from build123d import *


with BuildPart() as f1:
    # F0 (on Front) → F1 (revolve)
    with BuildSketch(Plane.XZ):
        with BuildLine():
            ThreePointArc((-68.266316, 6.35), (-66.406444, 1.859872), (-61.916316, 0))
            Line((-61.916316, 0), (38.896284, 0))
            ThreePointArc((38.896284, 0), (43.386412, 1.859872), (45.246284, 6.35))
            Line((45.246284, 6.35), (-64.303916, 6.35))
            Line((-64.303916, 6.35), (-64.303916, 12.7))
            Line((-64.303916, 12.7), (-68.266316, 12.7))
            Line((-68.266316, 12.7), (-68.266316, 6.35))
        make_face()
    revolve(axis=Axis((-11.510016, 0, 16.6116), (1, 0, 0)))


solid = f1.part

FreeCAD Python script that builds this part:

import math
import FreeCAD as App
import Part
import Sketcher

V = App.Vector
Q = App.Units.Quantity

doc = App.newDocument("Part")
body = doc.addObject("PartDesign::Body", "Body")

sketch1 = doc.addObject("Sketcher::SketchObject", "Sketch")
body.addObject(sketch1)
sketch1.AttachmentSupport = (doc.XZ_Plane, [""])
sketch1.MapMode = "FlatFace"
sketch1.addGeometry(Part.ArcOfCircle(Part.Circle(V(-61.9, 6.4, 0), V(0, 0, 1), 6.4), math.radians(-180), math.radians(-90)), False)
sketch1.addGeometry(Part.LineSegment(V(-61.9, 0, 0), V(38.9, 0, 0)), False)
sketch1.addGeometry(Part.ArcOfCircle(Part.Circle(V(38.9, 6.4, 0), V(0, 0, 1), 6.4), math.radians(-90), math.radians(0)), False)
sketch1.addGeometry(Part.LineSegment(V(45.2, 6.3, 0), V(-64.3, 6.3, 0)), False)
sketch1.addGeometry(Part.LineSegment(V(-64.3, 6.3, 0), V(-64.3, 12.7, 0)), False)
sketch1.addGeometry(Part.LineSegment(V(-64.3, 12.7, 0), V(-68.3, 12.7, 0)), False)
sketch1.addGeometry(Part.LineSegment(V(-68.3, 12.7, 0), V(-68.3, 6.3, 0)), False)
sketch1.addGeometry(Part.LineSegment(V(-68.3, 16.6, 0), V(45.2, 16.6, 0)), True)
sketch1.addConstraint(Sketcher.Constraint("Tangent", 0, 2, 1, 1))
sketch1.addConstraint(Sketcher.Constraint("Tangent", 1, 2, 2, 1))
sketch1.addConstraint(Sketcher.Constraint("Coincident", 2, 2, 3, 1))
sketch1.addConstraint(Sketcher.Constraint("Coincident", 3, 2, 4, 1))
sketch1.addConstraint(Sketcher.Constraint("Coincident", 4, 2, 5, 1))
sketch1.addConstraint(Sketcher.Constraint("Coincident", 5, 2, 6, 1))
sketch1.addConstraint(Sketcher.Constraint("Tangent", 6, 2, 0, 1))
sketch1.addConstraint(Sketcher.Constraint("Horizontal", 1))
sketch1.addConstraint(Sketcher.Constraint("Horizontal", 3))
sketch1.addConstraint(Sketcher.Constraint("Vertical", 4))
sketch1.addConstraint(Sketcher.Constraint("Horizontal", 5))
sketch1.addConstraint(Sketcher.Constraint("Vertical", 6))
sketch1.addConstraint(Sketcher.Constraint("Horizontal", 7))
sketch1.addConstraint(Sketcher.Constraint("Equal", 0, 2))
sketch1.addConstraint(Sketcher.Constraint("PointOnObject", 0, 2, -1))
sketch1.addConstraint(Sketcher.Constraint("Horizontal", 0, 3, 2, 2))
sketch1.addConstraint(Sketcher.Constraint("Vertical", 6, 2, 7, 1))
sketch1.addConstraint(Sketcher.Constraint("Vertical", 2, 2, 7, 2))
sketch1.addConstraint(Sketcher.Constraint("Radius", 0, Q("0.25 in")))
sketch1.addConstraint(Sketcher.Constraint("DistanceY", 4, 1, 4, 2, Q("0.25 in")))
sketch1.addConstraint(Sketcher.Constraint("DistanceX", 1, 1, 1, 2, Q("3.969 in")))
sketch1.addConstraint(Sketcher.Constraint("DistanceX", 3, 2, 3, 1, Q("4.313 in")))
sketch1.addConstraint(Sketcher.Constraint("DistanceY", -1, 1, 7, 1, Q("0.654 in")))
sketch1.addConstraint(Sketcher.Constraint("DistanceX", 0, 3, -1, 1, 61.916316))
revolution = doc.addObject("PartDesign::Revolution", "Revolution")
body.addObject(revolution)
revolution.Profile = sketch1
revolution.ReferenceAxis = (sketch1, ["Axis0"])
revolution.Angle = 360

doc.recompute()
